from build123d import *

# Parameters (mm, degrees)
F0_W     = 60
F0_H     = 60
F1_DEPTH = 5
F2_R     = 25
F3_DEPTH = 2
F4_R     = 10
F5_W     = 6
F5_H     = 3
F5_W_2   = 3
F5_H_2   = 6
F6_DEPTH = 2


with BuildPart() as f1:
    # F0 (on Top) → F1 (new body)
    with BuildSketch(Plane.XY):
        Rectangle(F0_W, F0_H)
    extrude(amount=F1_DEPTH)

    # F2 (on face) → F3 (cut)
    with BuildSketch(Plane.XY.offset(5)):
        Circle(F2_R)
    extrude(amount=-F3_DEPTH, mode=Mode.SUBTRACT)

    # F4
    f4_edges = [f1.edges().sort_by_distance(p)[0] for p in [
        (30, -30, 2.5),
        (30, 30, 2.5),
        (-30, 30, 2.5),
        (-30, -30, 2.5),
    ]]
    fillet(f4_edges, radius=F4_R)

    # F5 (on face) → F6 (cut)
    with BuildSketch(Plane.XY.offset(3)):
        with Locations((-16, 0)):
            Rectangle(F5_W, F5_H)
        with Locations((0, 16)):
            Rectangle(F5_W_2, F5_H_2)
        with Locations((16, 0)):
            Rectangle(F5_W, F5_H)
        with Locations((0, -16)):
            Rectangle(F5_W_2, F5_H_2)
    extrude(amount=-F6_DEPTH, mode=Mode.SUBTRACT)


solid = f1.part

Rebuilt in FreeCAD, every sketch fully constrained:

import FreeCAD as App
import Part
import Sketcher

V = App.Vector
Q = App.Units.Quantity


def edges_at(feature, points):
    """Names of the edges that pass closest to the given points."""
    edges = feature.Shape.Edges
    near = lambda p: min(range(len(edges)), key=lambda i: edges[i].distToShape(Part.Vertex(*p))[0])
    return sorted({f"Edge{near(p) + 1}" for p in points})

doc = App.newDocument("Part")
body = doc.addObject("PartDesign::Body", "Body")

sketch1 = body.newObject("Sketcher::SketchObject", "Sketch")
sketch1.AttachmentSupport = (doc.getObject("XY_Plane"), [""])
sketch1.MapMode = "FlatFace"
sketch1.addGeometry([
    Part.LineSegment(V(-30, 30, 0), V(-30, -30, 0)),
    Part.LineSegment(V(-30, -30, 0), V(30, -30, 0)),
    Part.LineSegment(V(30, -30, 0), V(30, 30, 0)),
    Part.LineSegment(V(30, 30, 0), V(-30, 30, 0)),
], False)
sketch1.addConstraint([
    Sketcher.Constraint("Coincident", 0, 2, 1, 1),
    Sketcher.Constraint("Coincident", 1, 2, 2, 1),
    Sketcher.Constraint("Coincident", 2, 2, 3, 1),
    Sketcher.Constraint("Coincident", 3, 2, 0, 1),
    Sketcher.Constraint("Vertical", 0),
    Sketcher.Constraint("Horizontal", 1),
    Sketcher.Constraint("Vertical", 2),
    Sketcher.Constraint("Horizontal", 3),
    Sketcher.Constraint("Symmetric", 0, 2, 2, 2, -1, 1),
    Sketcher.Constraint("Equal", 3, 0),
    Sketcher.Constraint("DistanceX", 1, 1, 1, 2, Q("60 mm")),
])
pad1 = body.newObject("PartDesign::Pad", "Pad")
pad1.Profile = sketch1
pad1.Length = 5

sketch2 = body.newObject("Sketcher::SketchObject", "Sketch001")
sketch2.AttachmentSupport = (doc.getObject("XY_Plane"), [""])
sketch2.MapMode = "FlatFace"
sketch2.AttachmentOffset = App.Placement(V(0, 0, 5), App.Rotation())
sketch2.addGeometry(Part.Circle(V(0, 0, 0), V(0, 0, 1), 25), False)
sketch2.addConstraint([
    Sketcher.Constraint("Coincident", 0, 3, -1, 1),
    Sketcher.Constraint("Diameter", 0, Q("50 mm")),
])
pocket1 = body.newObject("PartDesign::Pocket", "Pocket")
pocket1.Profile = sketch2
pocket1.Length = 2
doc.recompute()

fillet = body.newObject("PartDesign::Fillet", "Fillet")
fillet.Base = (pocket1, edges_at(pocket1, [
    (30, -30, 2.5),
    (30, 30, 2.5),
    (-30, 30, 2.5),
    (-30, -30, 2.5),
]))
fillet.Radius = 10

sketch3 = body.newObject("Sketcher::SketchObject", "Sketch002")
sketch3.AttachmentSupport = (doc.getObject("XY_Plane"), [""])
sketch3.MapMode = "FlatFace"
sketch3.AttachmentOffset = App.Placement(V(0, 0, 3), App.Rotation())
sketch3.addGeometry([
    Part.LineSegment(V(-19, 1.5, 0), V(-19, -1.5, 0)),
    Part.LineSegment(V(-19, -1.5, 0), V(-13, -1.5, 0)),
    Part.LineSegment(V(-13, -1.5, 0), V(-13, 1.5, 0)),
    Part.LineSegment(V(-13, 1.5, 0), V(-19, 1.5, 0)),
    Part.LineSegment(V(-1.5, 19, 0), V(-1.5, 13, 0)),
    Part.LineSegment(V(-1.5, 13, 0), V(1.5, 13, 0)),
    Part.LineSegment(V(1.5, 13, 0), V(1.5, 19, 0)),
    Part.LineSegment(V(1.5, 19, 0), V(-1.5, 19, 0)),
    Part.LineSegment(V(13, 1.5, 0), V(13, -1.5, 0)),
    Part.LineSegment(V(13, -1.5, 0), V(19, -1.5, 0)),
    Part.LineSegment(V(19, -1.5, 0), V(19, 1.5, 0)),
    Part.LineSegment(V(19, 1.5, 0), V(13, 1.5, 0)),
    Part.LineSegment(V(-1.5, -13, 0), V(-1.5, -19, 0)),
    Part.LineSegment(V(-1.5, -19, 0), V(1.5, -19, 0)),
    Part.LineSegment(V(1.5, -19, 0), V(1.5, -13, 0)),
    Part.LineSegment(V(1.5, -13, 0), V(-1.5, -13, 0)),
], False)
sketch3.addConstraint([
    Sketcher.Constraint("Coincident", 0, 2, 1, 1),
    Sketcher.Constraint("Coincident", 1, 2, 2, 1),
    Sketcher.Constraint("Coincident", 2, 2, 3, 1),
    Sketcher.Constraint("Coincident", 3, 2, 0, 1),
    Sketcher.Constraint("Coincident", 4, 2, 5, 1),
    Sketcher.Constraint("Coincident", 5, 2, 6, 1),
    Sketcher.Constraint("Coincident", 6, 2, 7, 1),
    Sketcher.Constraint("Coincident", 7, 2, 4, 1),
    Sketcher.Constraint("Coincident", 8, 2, 9, 1),
    Sketcher.Constraint("Coincident", 9, 2, 10, 1),
    Sketcher.Constraint("Coincident", 10, 2, 11, 1),
    Sketcher.Constraint("Coincident", 11, 2, 8, 1),
    Sketcher.Constraint("Coincident", 12, 2, 13, 1),
    Sketcher.Constraint("Coincident", 13, 2, 14, 1),
    Sketcher.Constraint("Coincident", 14, 2, 15, 1),
    Sketcher.Constraint("Coincident", 15, 2, 12, 1),
    Sketcher.Constraint("Vertical", 0),
    Sketcher.Constraint("Horizontal", 1),
    Sketcher.Constraint("Vertical", 2),
    Sketcher.Constraint("Horizontal", 3),
    Sketcher.Constraint("Vertical", 4),
    Sketcher.Constraint("Horizontal", 5),
    Sketcher.Constraint("Vertical", 6),
    Sketcher.Constraint("Horizontal", 7),
    Sketcher.Constraint("Vertical", 8),
    Sketcher.Constraint("Horizontal", 9),
    Sketcher.Constraint("Vertical", 10),
    Sketcher.Constraint("Horizontal", 11),
    Sketcher.Constraint("Vertical", 12),
    Sketcher.Constraint("Horizontal", 13),
    Sketcher.Constraint("Vertical", 14),
    Sketcher.Constraint("Horizontal", 15),
    Sketcher.Constraint("Symmetric", 2, 2, 8, 2, -1, 1),
    Sketcher.Constraint("Symmetric", 0, 2, 10, 2, -1, 1),
    Sketcher.Constraint("Symmetric", 6, 2, 12, 2, -1, 1),
    Sketcher.Constraint("Symmetric", 4, 2, 14, 2, -1, 1),
    Sketcher.Constraint("Horizontal", 1, 2, 8, 2),
    Sketcher.Constraint("Vertical", 7, 2, 12, 2),
    Sketcher.Constraint("Equal", 15, 0),
    Sketcher.Constraint("Equal", 11, 4),
    Sketcher.Constraint("DistanceX", 1, 1, 1, 2, Q("6 mm")),
    Sketcher.Constraint("DistanceX", 5, 1, 5, 2, Q("3 mm")),
    Sketcher.Constraint("DistanceX", 0, 2, -1, 1, Q("19 mm")),
    Sketcher.Constraint("DistanceY", -1, 1, 4, 2, Q("13 mm")),
])
pocket2 = body.newObject("PartDesign::Pocket", "Pocket001")
pocket2.Profile = sketch3
pocket2.Length = 2

doc.recompute()
